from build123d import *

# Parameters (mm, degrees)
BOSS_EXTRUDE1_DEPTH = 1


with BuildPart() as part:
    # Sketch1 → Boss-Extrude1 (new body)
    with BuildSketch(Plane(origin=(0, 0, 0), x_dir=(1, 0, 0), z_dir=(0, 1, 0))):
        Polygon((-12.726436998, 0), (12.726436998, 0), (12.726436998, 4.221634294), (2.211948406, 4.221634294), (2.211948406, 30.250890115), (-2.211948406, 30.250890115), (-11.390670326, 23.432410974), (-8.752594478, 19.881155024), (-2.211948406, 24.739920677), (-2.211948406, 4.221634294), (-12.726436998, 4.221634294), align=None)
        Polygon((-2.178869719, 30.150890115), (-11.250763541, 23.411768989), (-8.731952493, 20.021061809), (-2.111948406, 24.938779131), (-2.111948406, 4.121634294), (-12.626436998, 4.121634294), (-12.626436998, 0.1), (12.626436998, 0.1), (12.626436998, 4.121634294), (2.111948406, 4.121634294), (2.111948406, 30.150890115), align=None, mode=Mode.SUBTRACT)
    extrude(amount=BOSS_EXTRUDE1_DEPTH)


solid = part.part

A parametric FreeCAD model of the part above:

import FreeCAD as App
import Part
import Sketcher
from FreeCAD import Vector


def add_polygon(sketch, points):
    """Adds a closed chain of lines whose ends are joined by coincident constraints."""
    first, n = sketch.GeometryCount, len(points)
    for a, b in zip(points, points[1:] + points[:1]):
        sketch.addGeometry(Part.LineSegment(App.Vector(*a, 0), App.Vector(*b, 0)), False)
    for i in range(n):
        sketch.addConstraint(Sketcher.Constraint("Coincident", first + i, 2, first + (i + 1) % n, 1))

doc = App.newDocument("Part")
params = doc.addObject("Spreadsheet::Sheet", "Params")
for row, (alias, value) in enumerate([
    ("pad1_length", "1 mm"),
], start=1):
    params.set(f"A{row}", alias)
    params.set(f"B{row}", "=" + value)
    params.setAlias(f"B{row}", alias)

body = doc.addObject("PartDesign::Body", "Body")

# Sketch on XZ plane
sketch1 = doc.addObject("Sketcher::SketchObject", "Sketch")
body.addObject(sketch1)
sketch1.AttachmentSupport = (doc.XZ_Plane, [""])
sketch1.MapMode = "FlatFace"
add_polygon(sketch1, [(-12.726437, 0), (12.726437, 0), (12.726437, -4.221634), (2.211948, -4.221634), (2.211948, -30.25089), (-2.211948, -30.25089), (-11.39067, -23.432411), (-8.752594, -19.881155), (-2.211948, -24.739921), (-2.211948, -4.221634), (-12.726437, -4.221634)])  # lines 0-10
add_polygon(sketch1, [(-11.250764, -23.411769), (-2.17887, -30.15089), (2.111948, -30.15089), (2.111948, -4.121634), (12.626437, -4.121634), (12.626437, -0.1), (-12.626437, -0.1), (-12.626437, -4.121634), (-2.111948, -4.121634), (-2.111948, -24.938779), (-8.731952, -20.021062)])  # lines 11-21
sketch1.addConstraint(Sketcher.Constraint("Horizontal", 0))
sketch1.addConstraint(Sketcher.Constraint("Vertical", 1))
sketch1.addConstraint(Sketcher.Constraint("Horizontal", 2))
sketch1.addConstraint(Sketcher.Constraint("Vertical", 3))
sketch1.addConstraint(Sketcher.Constraint("Horizontal", 4))
sketch1.addConstraint(Sketcher.Constraint("Vertical", 8))
sketch1.addConstraint(Sketcher.Constraint("Horizontal", 9))
sketch1.addConstraint(Sketcher.Constraint("Vertical", 10))
sketch1.addConstraint(Sketcher.Constraint("Horizontal", 12))
sketch1.addConstraint(Sketcher.Constraint("Vertical", 13))
sketch1.addConstraint(Sketcher.Constraint("Horizontal", 14))
sketch1.addConstraint(Sketcher.Constraint("Vertical", 15))
sketch1.addConstraint(Sketcher.Constraint("Horizontal", 16))
sketch1.addConstraint(Sketcher.Constraint("Vertical", 17))
sketch1.addConstraint(Sketcher.Constraint("Horizontal", 18))
sketch1.addConstraint(Sketcher.Constraint("Vertical", 19))
sketch1.addConstraint(Sketcher.Constraint("Symmetric", 0, 2, 10, 2, -1, 1))
sketch1.addConstraint(Sketcher.Constraint("Symmetric", 2, 2, 8, 2, -2))
sketch1.addConstraint(Sketcher.Constraint("Symmetric", 14, 2, 17, 2, -2))
sketch1.addConstraint(Sketcher.Constraint("Perpendicular", 5, 6))
sketch1.addConstraint(Sketcher.Constraint("Perpendicular", 6, 7))
sketch1.addConstraint(Sketcher.Constraint("Parallel", 7, 11))
sketch1.addConstraint(Sketcher.Constraint("Parallel", 11, 20))
sketch1.addConstraint(Sketcher.Constraint("Perpendicular", 20, 21))
sketch1.addConstraint(Sketcher.Constraint("Vertical", 4, 2, 7, 2))
sketch1.addConstraint(Sketcher.Constraint("Equal", 9, 14))
sketch1.addConstraint(Sketcher.Constraint("Equal", 14, 18))
sketch1.addConstraint(Sketcher.Constraint("Equal", 3, 13))
sketch1.addConstraint(Sketcher.Constraint("DistanceY", 15, 2, -1, 1, 0.1))
sketch1.addConstraint(Sketcher.Constraint("DistanceY", 4, 2, 11, 2, 0.1))
sketch1.addConstraint(Sketcher.Constraint("DistanceX", 12, 2, 3, 2, 0.1))
sketch1.addConstraint(Sketcher.Constraint("DistanceX", 2, 2, 2, 1, 10.514489))
sketch1.addConstraint(Sketcher.Constraint("DistanceX", 12, 1, 12, 2, 4.290818))
sketch1.addConstraint(Sketcher.Constraint("DistanceX", 5, 2, 11, 2, 9.211801))
sketch1.addConstraint(Sketcher.Constraint("Distance", 7, 8.147862))
sketch1.addConstraint(Sketcher.Constraint("Distance", 20, 8.24672))
sketch1.addConstraint(Sketcher.Constraint("DistanceX", 0, 1, 0, 2, 25.452874))
sketch1.addConstraint(Sketcher.Constraint("DistanceY", 1, 2, 1, 1, 4.221634))
sketch1.addConstraint(Sketcher.Constraint("DistanceY", 3, 2, 3, 1, 26.029256))
sketch1.addConstraint(Sketcher.Constraint("DistanceY", 8, 1, 8, 2, 20.518286))
sketch1.addConstraint(Sketcher.Constraint("DistanceY", 19, 2, 19, 1, 20.817145))
pad1 = doc.addObject("PartDesign::Pad", "Pad")
body.addObject(pad1)
pad1.Profile = sketch1
pad1.setExpression("Length", "Params.pad1_length")
pad1.Reversed = True

doc.recompute()
